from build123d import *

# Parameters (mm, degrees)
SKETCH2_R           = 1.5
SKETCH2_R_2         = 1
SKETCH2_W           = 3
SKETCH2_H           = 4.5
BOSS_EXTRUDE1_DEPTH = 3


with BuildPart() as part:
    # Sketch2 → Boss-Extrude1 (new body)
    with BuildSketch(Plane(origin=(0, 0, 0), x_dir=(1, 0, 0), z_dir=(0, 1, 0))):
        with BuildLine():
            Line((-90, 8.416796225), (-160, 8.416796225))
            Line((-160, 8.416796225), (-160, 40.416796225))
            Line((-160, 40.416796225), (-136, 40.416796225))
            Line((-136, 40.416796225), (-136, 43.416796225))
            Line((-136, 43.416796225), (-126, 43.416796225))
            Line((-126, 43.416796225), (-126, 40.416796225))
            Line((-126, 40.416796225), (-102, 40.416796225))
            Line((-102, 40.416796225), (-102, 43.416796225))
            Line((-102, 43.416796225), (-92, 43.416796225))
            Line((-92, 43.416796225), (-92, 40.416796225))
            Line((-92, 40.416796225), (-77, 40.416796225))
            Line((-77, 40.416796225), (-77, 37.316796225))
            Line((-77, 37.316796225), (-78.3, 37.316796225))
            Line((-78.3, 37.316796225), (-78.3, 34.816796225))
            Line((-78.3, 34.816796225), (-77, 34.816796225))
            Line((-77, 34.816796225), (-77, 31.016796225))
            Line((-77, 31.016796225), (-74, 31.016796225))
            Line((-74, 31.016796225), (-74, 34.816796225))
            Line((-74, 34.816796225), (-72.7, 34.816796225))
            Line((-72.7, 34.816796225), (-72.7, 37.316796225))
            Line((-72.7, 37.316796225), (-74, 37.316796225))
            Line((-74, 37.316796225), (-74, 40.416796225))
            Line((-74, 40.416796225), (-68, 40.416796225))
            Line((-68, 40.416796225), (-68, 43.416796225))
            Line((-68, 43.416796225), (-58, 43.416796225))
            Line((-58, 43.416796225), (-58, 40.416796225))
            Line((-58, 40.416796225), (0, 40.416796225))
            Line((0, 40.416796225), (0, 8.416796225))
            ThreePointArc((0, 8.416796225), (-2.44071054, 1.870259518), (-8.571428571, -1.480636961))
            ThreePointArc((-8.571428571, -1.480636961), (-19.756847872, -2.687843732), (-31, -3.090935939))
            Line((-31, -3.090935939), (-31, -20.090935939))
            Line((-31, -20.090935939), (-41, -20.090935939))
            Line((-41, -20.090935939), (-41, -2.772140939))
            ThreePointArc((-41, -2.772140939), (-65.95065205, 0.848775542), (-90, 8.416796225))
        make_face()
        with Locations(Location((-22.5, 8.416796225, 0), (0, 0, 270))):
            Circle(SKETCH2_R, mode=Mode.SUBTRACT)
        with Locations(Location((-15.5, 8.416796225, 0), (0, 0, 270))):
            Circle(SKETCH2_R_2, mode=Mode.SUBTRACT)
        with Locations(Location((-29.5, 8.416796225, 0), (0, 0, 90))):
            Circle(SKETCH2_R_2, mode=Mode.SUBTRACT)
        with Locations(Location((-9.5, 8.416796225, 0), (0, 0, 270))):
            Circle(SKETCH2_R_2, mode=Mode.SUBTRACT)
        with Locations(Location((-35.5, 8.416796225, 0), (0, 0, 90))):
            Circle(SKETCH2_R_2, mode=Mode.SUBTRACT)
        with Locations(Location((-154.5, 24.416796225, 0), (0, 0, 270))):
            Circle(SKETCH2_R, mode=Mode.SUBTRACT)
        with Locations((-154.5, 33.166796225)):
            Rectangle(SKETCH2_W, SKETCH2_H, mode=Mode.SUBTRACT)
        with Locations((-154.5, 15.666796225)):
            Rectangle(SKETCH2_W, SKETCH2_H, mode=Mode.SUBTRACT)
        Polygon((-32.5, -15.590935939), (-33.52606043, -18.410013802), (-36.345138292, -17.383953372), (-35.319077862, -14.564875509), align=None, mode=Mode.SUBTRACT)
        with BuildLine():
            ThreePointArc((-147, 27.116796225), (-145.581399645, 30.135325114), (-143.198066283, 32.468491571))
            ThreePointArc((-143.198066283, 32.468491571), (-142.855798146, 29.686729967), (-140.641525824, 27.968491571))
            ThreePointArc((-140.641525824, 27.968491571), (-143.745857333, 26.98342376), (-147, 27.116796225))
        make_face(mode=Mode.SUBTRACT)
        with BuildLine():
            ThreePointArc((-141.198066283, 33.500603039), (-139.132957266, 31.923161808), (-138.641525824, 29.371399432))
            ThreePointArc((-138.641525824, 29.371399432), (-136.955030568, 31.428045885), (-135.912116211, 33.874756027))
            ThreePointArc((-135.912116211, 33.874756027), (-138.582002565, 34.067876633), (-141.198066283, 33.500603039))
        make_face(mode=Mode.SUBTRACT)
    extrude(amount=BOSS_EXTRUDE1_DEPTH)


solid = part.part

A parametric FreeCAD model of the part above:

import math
import FreeCAD as App
import Part
import Sketcher
Q = App.Units.Quantity


def add_polygon(sketch, points):
    """Adds a closed chain of lines whose ends are joined by coincident constraints."""
    first, n = sketch.GeometryCount, len(points)
    for a, b in zip(points, points[1:] + points[:1]):
        sketch.addGeometry(Part.LineSegment(App.Vector(*a, 0), App.Vector(*b, 0)), False)
    for i in range(n):
        sketch.addConstraint(Sketcher.Constraint("Coincident", first + i, 2, first + (i + 1) % n, 1))

doc = App.newDocument("Part")
body = doc.addObject("PartDesign::Body", "Body")

# Sketch on XZ plane
sketch1 = doc.addObject("Sketcher::SketchObject", "Sketch")
body.addObject(sketch1)
sketch1.AttachmentSupport = (doc.XZ_Plane, [""])
sketch1.MapMode = "FlatFace"
sketch1.addGeometry(Part.LineSegment(App.Vector(-160, -8.4, 0), App.Vector(-90, -8.4, 0)), False)  # 0
sketch1.addGeometry(Part.ArcOfCircle(Part.Circle(App.Vector(-31, -153.9, 0), App.Vector(0, 0, 1), 157), math.radians(93.65), math.radians(112.07)), False)  # 1
sketch1.addGeometry(Part.LineSegment(App.Vector(-41, 2.8, 0), App.Vector(-41, 20.1, 0)), False)  # 2
sketch1.addGeometry(Part.LineSegment(App.Vector(-41, 20.1, 0), App.Vector(-31, 20.1, 0)), False)  # 3
sketch1.addGeometry(Part.LineSegment(App.Vector(-31, 20.1, 0), App.Vector(-31, 3.1, 0)), False)  # 4
sketch1.addGeometry(Part.ArcOfCircle(Part.Circle(App.Vector(-31, -153.9, 0), App.Vector(0, 0, 1), 157), math.radians(81.79), math.radians(90)), False)  # 5
sketch1.addGeometry(Part.ArcOfCircle(Part.Circle(App.Vector(-10, -8.4, 0), App.Vector(0, 0, 1), 10), math.radians(0), math.radians(82)), False)  # 6
sketch1.addGeometry(Part.LineSegment(App.Vector(0, -8.4, 0), App.Vector(0, -40.4, 0)), False)  # 7
sketch1.addGeometry(Part.LineSegment(App.Vector(0, -40.4, 0), App.Vector(-58, -40.4, 0)), False)  # 8
sketch1.addGeometry(Part.LineSegment(App.Vector(-58, -40.4, 0), App.Vector(-58, -43.4, 0)), False)  # 9
sketch1.addGeometry(Part.LineSegment(App.Vector(-58, -43.4, 0), App.Vector(-68, -43.4, 0)), False)  # 10
sketch1.addGeometry(Part.LineSegment(App.Vector(-68, -43.4, 0), App.Vector(-68, -40.4, 0)), False)  # 11
sketch1.addGeometry(Part.LineSegment(App.Vector(-68, -40.4, 0), App.Vector(-74, -40.4, 0)), False)  # 12
sketch1.addGeometry(Part.LineSegment(App.Vector(-74, -40.4, 0), App.Vector(-74, -37.3, 0)), False)  # 13
sketch1.addGeometry(Part.LineSegment(App.Vector(-74, -37.3, 0), App.Vector(-72.7, -37.3, 0)), False)  # 14
sketch1.addGeometry(Part.LineSegment(App.Vector(-72.7, -37.3, 0), App.Vector(-72.7, -34.8, 0)), False)  # 15
sketch1.addGeometry(Part.LineSegment(App.Vector(-72.7, -34.8, 0), App.Vector(-74, -34.8, 0)), False)  # 16
sketch1.addGeometry(Part.LineSegment(App.Vector(-74, -34.8, 0), App.Vector(-74, -31, 0)), False)  # 17
sketch1.addGeometry(Part.LineSegment(App.Vector(-74, -31, 0), App.Vector(-77, -31, 0)), False)  # 18
sketch1.addGeometry(Part.LineSegment(App.Vector(-77, -31, 0), App.Vector(-77, -34.8, 0)), False)  # 19
sketch1.addGeometry(Part.LineSegment(App.Vector(-77, -34.8, 0), App.Vector(-78.3, -34.8, 0)), False)  # 20
sketch1.addGeometry(Part.LineSegment(App.Vector(-78.3, -34.8, 0), App.Vector(-78.3, -37.3, 0)), False)  # 21
sketch1.addGeometry(Part.LineSegment(App.Vector(-78.3, -37.3, 0), App.Vector(-77, -37.3, 0)), False)  # 22
sketch1.addGeometry(Part.LineSegment(App.Vector(-77, -37.3, 0), App.Vector(-77, -40.4, 0)), False)  # 23
sketch1.addGeometry(Part.LineSegment(App.Vector(-77, -40.4, 0), App.Vector(-92, -40.4, 0)), False)  # 24
sketch1.addGeometry(Part.LineSegment(App.Vector(-92, -40.4, 0), App.Vector(-92, -43.4, 0)), False)  # 25
sketch1.addGeometry(Part.LineSegment(App.Vector(-92, -43.4, 0), App.Vector(-102, -43.4, 0)), False)  # 26
sketch1.addGeometry(Part.LineSegment(App.Vector(-102, -43.4, 0), App.Vector(-102, -40.4, 0)), False)  # 27
sketch1.addGeometry(Part.LineSegment(App.Vector(-102, -40.4, 0), App.Vector(-126, -40.4, 0)), False)  # 28
sketch1.addGeometry(Part.LineSegment(App.Vector(-126, -40.4, 0), App.Vector(-126, -43.4, 0)), False)  # 29
sketch1.addGeometry(Part.LineSegment(App.Vector(-126, -43.4, 0), App.Vector(-136, -43.4, 0)), False)  # 30
sketch1.addGeometry(Part.LineSegment(App.Vector(-136, -43.4, 0), App.Vector(-136, -40.4, 0)), False)  # 31
sketch1.addGeometry(Part.LineSegment(App.Vector(-136, -40.4, 0), App.Vector(-160, -40.4, 0)), False)  # 32
sketch1.addGeometry(Part.LineSegment(App.Vector(-160, -40.4, 0), App.Vector(-160, -8.4, 0)), False)  # 33
add_polygon(sketch1, [(-32.5, 15.6), (-33.5, 18.4), (-36.3, 17.4), (-35.3, 14.6)])  # lines 34-37
sketch1.addGeometry(Part.Circle(App.Vector(-9.5, -8.4, 0), App.Vector(0, 0, 1), 1), False)  # 38
sketch1.addGeometry(Part.Circle(App.Vector(-15.5, -8.4, 0), App.Vector(0, 0, 1), 1), False)  # 39
sketch1.addGeometry(Part.Circle(App.Vector(-22.5, -8.4, 0), App.Vector(0, 0, 1), 1.5), False)  # 40
sketch1.addGeometry(Part.Circle(App.Vector(-29.5, -8.4, 0), App.Vector(0, 0, 1), 1), False)  # 41
sketch1.addGeometry(Part.Circle(App.Vector(-35.5, -8.4, 0), App.Vector(0, 0, 1), 1), False)  # 42
add_polygon(sketch1, [(-156, -13.4), (-156, -17.9), (-153, -17.9), (-153, -13.4)])  # lines 43-46
sketch1.addGeometry(Part.Circle(App.Vector(-154.5, -24.4, 0), App.Vector(0, 0, 1), 1.5), False)  # 47
sketch1.addGeometry(Part.ArcOfCircle(Part.Circle(App.Vector(-137.9, -24.7, 0), App.Vector(0, 0, 1), 9.4), math.radians(-165), math.radians(-124)), False)  # 48
sketch1.addGeometry(Part.ArcOfCircle(Part.Circle(App.Vector(-139.7, -31.5, 0), App.Vector(0, 0, 1), 3.6), math.radians(105), math.radians(196)), False)  # 49
sketch1.addGeometry(Part.ArcOfCircle(Part.Circle(App.Vector(-145, -36.3, 0), App.Vector(0, 0, 1), 9.4), math.radians(62), math.radians(102)), False)  # 50
sketch1.addGeometry(Part.ArcOfCircle(Part.Circle(App.Vector(-137.9, -24.7, 0), App.Vector(0, 0, 1), 9.4), math.radians(-110), math.radians(-78)), False)  # 51
sketch1.addGeometry(Part.ArcOfCircle(Part.Circle(App.Vector(-145, -36.3, 0), App.Vector(0, 0, 1), 9.4), math.radians(15), math.radians(47)), False)  # 52
sketch1.addGeometry(Part.ArcOfCircle(Part.Circle(App.Vector(-142.2, -30, 0), App.Vector(0, 0, 1), 3.6), math.radians(-73), math.radians(10)), False)  # 53
add_polygon(sketch1, [(-156, -30.9), (-156, -35.4), (-153, -35.4), (-153, -30.9)])  # lines 54-57
sketch1.addConstraint([
    Sketcher.Constraint("Coincident", 0, 2, 1, 2),
    Sketcher.Constraint("Coincident", 1, 1, 2, 1),
    Sketcher.Constraint("Coincident", 2, 2, 3, 1),
    Sketcher.Constraint("Coincident", 3, 2, 4, 1),
    Sketcher.Constraint("Coincident", 4, 2, 5, 2),
    Sketcher.Constraint("Tangent", 5, 1, 6, 2),
    Sketcher.Constraint("Tangent", 6, 1, 7, 1),
    Sketcher.Constraint("Coincident", 7, 2, 8, 1),
    Sketcher.Constraint("Coincident", 8, 2, 9, 1),
    Sketcher.Constraint("Coincident", 9, 2, 10, 1),
    Sketcher.Constraint("Coincident", 10, 2, 11, 1),
    Sketcher.Constraint("Coincident", 11, 2, 12, 1),
    Sketcher.Constraint("Coincident", 12, 2, 13, 1),
    Sketcher.Constraint("Coincident", 13, 2, 14, 1),
    Sketcher.Constraint("Coincident", 14, 2, 15, 1),
    Sketcher.Constraint("Coincident", 15, 2, 16, 1),
    Sketcher.Constraint("Coincident", 16, 2, 17, 1),
    Sketcher.Constraint("Coincident", 17, 2, 18, 1),
    Sketcher.Constraint("Coincident", 18, 2, 19, 1),
    Sketcher.Constraint("Coincident", 19, 2, 20, 1),
    Sketcher.Constraint("Coincident", 20, 2, 21, 1),
    Sketcher.Constraint("Coincident", 21, 2, 22, 1),
    Sketcher.Constraint("Coincident", 22, 2, 23, 1),
    Sketcher.Constraint("Coincident", 23, 2, 24, 1),
    Sketcher.Constraint("Coincident", 24, 2, 25, 1),
    Sketcher.Constraint("Coincident", 25, 2, 26, 1),
    Sketcher.Constraint("Coincident", 26, 2, 27, 1),
    Sketcher.Constraint("Coincident", 27, 2, 28, 1),
    Sketcher.Constraint("Coincident", 28, 2, 29, 1),
    Sketcher.Constraint("Coincident", 29, 2, 30, 1),
    Sketcher.Constraint("Coincident", 30, 2, 31, 1),
    Sketcher.Constraint("Coincident", 31, 2, 32, 1),
    Sketcher.Constraint("Coincident", 32, 2, 33, 1),
    Sketcher.Constraint("Coincident", 33, 2, 0, 1),
    Sketcher.Constraint("Coincident", 48, 2, 49, 2),
    Sketcher.Constraint("Coincident", 49, 1, 50, 1),
    Sketcher.Constraint("Coincident", 50, 2, 48, 1),
    Sketcher.Constraint("Coincident", 51, 2, 52, 1),
    Sketcher.Constraint("Coincident", 52, 2, 53, 2),
    Sketcher.Constraint("Coincident", 53, 1, 51, 1),
    Sketcher.Constraint("Horizontal", 0),
    Sketcher.Constraint("Vertical", 2),
    Sketcher.Constraint("Horizontal", 3),
    Sketcher.Constraint("Vertical", 4),
    Sketcher.Constraint("Vertical", 7),
    Sketcher.Constraint("Horizontal", 8),
    Sketcher.Constraint("Vertical", 9),
    Sketcher.Constraint("Horizontal", 10),
    Sketcher.Constraint("Vertical", 11),
    Sketcher.Constraint("Horizontal", 12),
    Sketcher.Constraint("Vertical", 13),
    Sketcher.Constraint("Horizontal", 14),
    Sketcher.Constraint("Vertical", 15),
    Sketcher.Constraint("Horizontal", 16),
    Sketcher.Constraint("Vertical", 17),
    Sketcher.Constraint("Horizontal", 18),
    Sketcher.Constraint("Vertical", 19),
    Sketcher.Constraint("Horizontal", 20),
    Sketcher.Constraint("Vertical", 21),
    Sketcher.Constraint("Horizontal", 22),
    Sketcher.Constraint("Vertical", 23),
    Sketcher.Constraint("Horizontal", 24),
    Sketcher.Constraint("Vertical", 25),
    Sketcher.Constraint("Horizontal", 26),
    Sketcher.Constraint("Vertical", 27),
    Sketcher.Constraint("Horizontal", 28),
    Sketcher.Constraint("Vertical", 29),
    Sketcher.Constraint("Horizontal", 30),
    Sketcher.Constraint("Vertical", 31),
    Sketcher.Constraint("Horizontal", 32),
    Sketcher.Constraint("Vertical", 33),
    Sketcher.Constraint("Vertical", 43),
    Sketcher.Constraint("Horizontal", 44),
    Sketcher.Constraint("Vertical", 45),
    Sketcher.Constraint("Horizontal", 46),
    Sketcher.Constraint("Vertical", 54),
    Sketcher.Constraint("Horizontal", 55),
    Sketcher.Constraint("Vertical", 56),
    Sketcher.Constraint("Horizontal", 57),
    Sketcher.Constraint("Coincident", 5, 3, 1, 3),
    Sketcher.Constraint("Coincident", 51, 3, 48, 3),
    Sketcher.Constraint("Coincident", 52, 3, 50, 3),
    Sketcher.Constraint("Equal", 1, 5),
    Sketcher.Constraint("Equal", 38, 39),
    Sketcher.Constraint("Equal", 39, 41),
    Sketcher.Constraint("Equal", 41, 42),
    Sketcher.Constraint("Equal", 40, 47),
    Sketcher.Constraint("Equal", 48, 50),
    Sketcher.Constraint("Equal", 50, 51),
    Sketcher.Constraint("Equal", 51, 52),
    Sketcher.Constraint("Equal", 49, 53),
    Sketcher.Constraint("PointOnObject", 6, 1, -2),
    Sketcher.Constraint("Perpendicular", 34, 35),
    Sketcher.Constraint("Perpendicular", 35, 36),
    Sketcher.Constraint("Perpendicular", 36, 37),
    Sketcher.Constraint("Horizontal", 6, 3, 38, 3),
    Sketcher.Constraint("Horizontal", 38, 3, 39, 3),
    Sketcher.Constraint("Horizontal", 39, 3, 40, 3),
    Sketcher.Constraint("Horizontal", 40, 3, 41, 3),
    Sketcher.Constraint("Horizontal", 41, 3, 42, 3),
    Sketcher.Constraint("Horizontal", 42, 3, 0, 2),
    Sketcher.Constraint("Horizontal", 8, 2, 11, 2),
    Sketcher.Constraint("Horizontal", 16, 2, 19, 2),
    Sketcher.Constraint("Horizontal", 14, 2, 21, 2),
    Sketcher.Constraint("Horizontal", 12, 2, 23, 2),
    Sketcher.Constraint("Horizontal", 10, 2, 25, 2),
    Sketcher.Constraint("Horizontal", 24, 2, 27, 2),
    Sketcher.Constraint("Horizontal", 26, 2, 29, 2),
    Sketcher.Constraint("Horizontal", 28, 2, 31, 2),
    Sketcher.Constraint("Vertical", 5, 3, 3, 2),
    Sketcher.Constraint("Vertical", 13, 2, 16, 2),
    Sketcher.Constraint("Vertical", 19, 2, 22, 2),
    Sketcher.Constraint("Vertical", 46, 2, 54, 2),
    Sketcher.Constraint("Vertical", 45, 2, 55, 2),
    Sketcher.Constraint("Equal", 3, 10),
    Sketcher.Constraint("Equal", 16, 20),
    Sketcher.Constraint("Equal", 10, 26),
    Sketcher.Constraint("Equal", 26, 30),
    Sketcher.Constraint("Equal", 28, 32),
    Sketcher.Constraint("Equal", 18, 44),
    Sketcher.Constraint("Equal", 57, 9),
    Sketcher.Constraint("Equal", 45, 54),
    Sketcher.Constraint("Equal", 34, 35),
    Sketcher.Constraint("Diameter", 38, 2.0),
    Sketcher.Constraint("Diameter", 40, 3.0),
    Sketcher.Constraint("Radius", 1, 157.0),
    Sketcher.Constraint("Radius", 6, 10.0),
    Sketcher.Constraint("Radius", 48, 9.4),
    Sketcher.Constraint("DistanceX", 0, 1, 0, 2, 70.0),
    Sketcher.Constraint("DistanceX", 3, 1, 3, 2, 10.0),
    Sketcher.Constraint("DistanceX", 8, 2, 8, 1, 58.0),
    Sketcher.Constraint("DistanceX", 12, 2, 12, 1, 6.0),
    Sketcher.Constraint("DistanceX", 18, 2, 18, 1, 3.0),
    Sketcher.Constraint("DistanceX", 24, 2, 24, 1, 15.0),
    Sketcher.Constraint("DistanceX", 28, 2, 28, 1, 24.0),
    Sketcher.Constraint("DistanceY", 4, 2, 4, 1, 17.0),
    Sketcher.Constraint("DistanceY", 7, 2, 7, 1, 32.0),
    Sketcher.Constraint("Angle", 34, Q("110 deg")),
    Sketcher.Constraint("Distance", 34, 3.0),
    Sketcher.Constraint("DistanceX", 14, 1, 14, 2, 1.3),
    Sketcher.Constraint("DistanceY", 13, 1, 13, 2, 3.1),
    Sketcher.Constraint("DistanceY", 15, 1, 15, 2, 2.5),
    Sketcher.Constraint("DistanceY", 17, 1, 17, 2, 3.8),
    Sketcher.Constraint("DistanceY", 43, 2, 43, 1, 4.5),
    Sketcher.Constraint("DistanceX", 43, 2, -1, 1, 156.0),
    Sketcher.Constraint("DistanceX", 50, 2, -1, 1, 147.0),
    Sketcher.Constraint("DistanceX", 38, 3, -1, 1, 9.5),
    Sketcher.Constraint("DistanceX", 39, 3, -1, 1, 15.5),
    Sketcher.Constraint("DistanceX", 40, 3, -1, 1, 22.5),
    Sketcher.Constraint("DistanceX", 41, 3, -1, 1, 29.5),
    Sketcher.Constraint("DistanceX", 42, 3, -1, 1, 35.5),
    Sketcher.Constraint("DistanceX", 47, 3, -1, 1, 154.5),
    Sketcher.Constraint("DistanceX", 37, 2, -1, 1, 32.5),
    Sketcher.Constraint("Radius", 49, 3.648529),
    Sketcher.Constraint("DistanceY", 52, 2, -1, 1, 29.371399),
    Sketcher.Constraint("DistanceY", 49, 3, -1, 1, 31.48899),
    Sketcher.Constraint("DistanceX", 50, 3, -1, 1, 144.993809),
    Sketcher.Constraint("DistanceX", 53, 3, -1, 1, 142.235051),
    Sketcher.Constraint("DistanceY", -1, 1, 1, 1, 2.772141),
    Sketcher.Constraint("DistanceY", 48, 2, -1, 1, 32.468492),
    Sketcher.Constraint("DistanceY", 49, 1, -1, 1, 27.968492),
    Sketcher.Constraint("DistanceY", 47, 3, -1, 1, 24.416796),
    Sketcher.Constraint("DistanceX", 48, 3, -1, 1, 137.918307),
    Sketcher.Constraint("DistanceY", -1, 1, 34, 2, 18.410014),
    Sketcher.Constraint("DistanceY", 43, 2, -1, 1, 17.916796),
    Sketcher.Constraint("DistanceY", 54, 2, -1, 1, 35.416796),
])
pad1 = doc.addObject("PartDesign::Pad", "Pad")
body.addObject(pad1)
pad1.Profile = sketch1
pad1.Length = 3
pad1.Reversed = True

doc.recompute()
